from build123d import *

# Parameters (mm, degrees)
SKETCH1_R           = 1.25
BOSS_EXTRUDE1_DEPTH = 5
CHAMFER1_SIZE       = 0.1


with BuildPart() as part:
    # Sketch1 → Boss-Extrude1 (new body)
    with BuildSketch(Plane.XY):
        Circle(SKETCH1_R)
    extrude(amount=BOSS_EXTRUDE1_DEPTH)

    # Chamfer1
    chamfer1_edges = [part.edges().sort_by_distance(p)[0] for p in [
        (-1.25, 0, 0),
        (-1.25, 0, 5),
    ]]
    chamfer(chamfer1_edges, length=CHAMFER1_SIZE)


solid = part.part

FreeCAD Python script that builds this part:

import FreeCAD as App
import Part
import Sketcher
from FreeCAD import Vector
Q = App.Units.Quantity


def edges_at(feature, points):
    """Names of the edges that pass closest to the given points."""
    edges = feature.Shape.Edges
    near = lambda p: min(range(len(edges)), key=lambda i: edges[i].distToShape(Part.Vertex(*p))[0])
    return sorted({f"Edge{near(p) + 1}" for p in points})

doc = App.newDocument("Part")
body = doc.addObject("PartDesign::Body", "Body")

# Sketch on XY plane
sketch1 = doc.addObject("Sketcher::SketchObject", "Sketch")
body.addObject(sketch1)
sketch1.AttachmentSupport = (doc.XY_Plane, [""])
sketch1.MapMode = "FlatFace"
sketch1.addGeometry(Part.Circle(Vector(0, 0, 0), Vector(0, 0, 1), 1.2), False)
sketch1.addConstraint([
    Sketcher.Constraint("Coincident", 0, 3, -1, 1),
    Sketcher.Constraint("Diameter", 0, Q("2.5 mm")),
])
pad1 = doc.addObject("PartDesign::Pad", "Pad")
body.addObject(pad1)
pad1.Profile = sketch1
pad1.Length = 5
doc.recompute()

chamfer = doc.addObject("PartDesign::Chamfer", "Chamfer")
body.addObject(chamfer)
chamfer.Base = (pad1, edges_at(pad1, [(-1.25, 0, 0), (-1.25, 0, 5)]))
chamfer.Size = 0.1

doc.recompute()
